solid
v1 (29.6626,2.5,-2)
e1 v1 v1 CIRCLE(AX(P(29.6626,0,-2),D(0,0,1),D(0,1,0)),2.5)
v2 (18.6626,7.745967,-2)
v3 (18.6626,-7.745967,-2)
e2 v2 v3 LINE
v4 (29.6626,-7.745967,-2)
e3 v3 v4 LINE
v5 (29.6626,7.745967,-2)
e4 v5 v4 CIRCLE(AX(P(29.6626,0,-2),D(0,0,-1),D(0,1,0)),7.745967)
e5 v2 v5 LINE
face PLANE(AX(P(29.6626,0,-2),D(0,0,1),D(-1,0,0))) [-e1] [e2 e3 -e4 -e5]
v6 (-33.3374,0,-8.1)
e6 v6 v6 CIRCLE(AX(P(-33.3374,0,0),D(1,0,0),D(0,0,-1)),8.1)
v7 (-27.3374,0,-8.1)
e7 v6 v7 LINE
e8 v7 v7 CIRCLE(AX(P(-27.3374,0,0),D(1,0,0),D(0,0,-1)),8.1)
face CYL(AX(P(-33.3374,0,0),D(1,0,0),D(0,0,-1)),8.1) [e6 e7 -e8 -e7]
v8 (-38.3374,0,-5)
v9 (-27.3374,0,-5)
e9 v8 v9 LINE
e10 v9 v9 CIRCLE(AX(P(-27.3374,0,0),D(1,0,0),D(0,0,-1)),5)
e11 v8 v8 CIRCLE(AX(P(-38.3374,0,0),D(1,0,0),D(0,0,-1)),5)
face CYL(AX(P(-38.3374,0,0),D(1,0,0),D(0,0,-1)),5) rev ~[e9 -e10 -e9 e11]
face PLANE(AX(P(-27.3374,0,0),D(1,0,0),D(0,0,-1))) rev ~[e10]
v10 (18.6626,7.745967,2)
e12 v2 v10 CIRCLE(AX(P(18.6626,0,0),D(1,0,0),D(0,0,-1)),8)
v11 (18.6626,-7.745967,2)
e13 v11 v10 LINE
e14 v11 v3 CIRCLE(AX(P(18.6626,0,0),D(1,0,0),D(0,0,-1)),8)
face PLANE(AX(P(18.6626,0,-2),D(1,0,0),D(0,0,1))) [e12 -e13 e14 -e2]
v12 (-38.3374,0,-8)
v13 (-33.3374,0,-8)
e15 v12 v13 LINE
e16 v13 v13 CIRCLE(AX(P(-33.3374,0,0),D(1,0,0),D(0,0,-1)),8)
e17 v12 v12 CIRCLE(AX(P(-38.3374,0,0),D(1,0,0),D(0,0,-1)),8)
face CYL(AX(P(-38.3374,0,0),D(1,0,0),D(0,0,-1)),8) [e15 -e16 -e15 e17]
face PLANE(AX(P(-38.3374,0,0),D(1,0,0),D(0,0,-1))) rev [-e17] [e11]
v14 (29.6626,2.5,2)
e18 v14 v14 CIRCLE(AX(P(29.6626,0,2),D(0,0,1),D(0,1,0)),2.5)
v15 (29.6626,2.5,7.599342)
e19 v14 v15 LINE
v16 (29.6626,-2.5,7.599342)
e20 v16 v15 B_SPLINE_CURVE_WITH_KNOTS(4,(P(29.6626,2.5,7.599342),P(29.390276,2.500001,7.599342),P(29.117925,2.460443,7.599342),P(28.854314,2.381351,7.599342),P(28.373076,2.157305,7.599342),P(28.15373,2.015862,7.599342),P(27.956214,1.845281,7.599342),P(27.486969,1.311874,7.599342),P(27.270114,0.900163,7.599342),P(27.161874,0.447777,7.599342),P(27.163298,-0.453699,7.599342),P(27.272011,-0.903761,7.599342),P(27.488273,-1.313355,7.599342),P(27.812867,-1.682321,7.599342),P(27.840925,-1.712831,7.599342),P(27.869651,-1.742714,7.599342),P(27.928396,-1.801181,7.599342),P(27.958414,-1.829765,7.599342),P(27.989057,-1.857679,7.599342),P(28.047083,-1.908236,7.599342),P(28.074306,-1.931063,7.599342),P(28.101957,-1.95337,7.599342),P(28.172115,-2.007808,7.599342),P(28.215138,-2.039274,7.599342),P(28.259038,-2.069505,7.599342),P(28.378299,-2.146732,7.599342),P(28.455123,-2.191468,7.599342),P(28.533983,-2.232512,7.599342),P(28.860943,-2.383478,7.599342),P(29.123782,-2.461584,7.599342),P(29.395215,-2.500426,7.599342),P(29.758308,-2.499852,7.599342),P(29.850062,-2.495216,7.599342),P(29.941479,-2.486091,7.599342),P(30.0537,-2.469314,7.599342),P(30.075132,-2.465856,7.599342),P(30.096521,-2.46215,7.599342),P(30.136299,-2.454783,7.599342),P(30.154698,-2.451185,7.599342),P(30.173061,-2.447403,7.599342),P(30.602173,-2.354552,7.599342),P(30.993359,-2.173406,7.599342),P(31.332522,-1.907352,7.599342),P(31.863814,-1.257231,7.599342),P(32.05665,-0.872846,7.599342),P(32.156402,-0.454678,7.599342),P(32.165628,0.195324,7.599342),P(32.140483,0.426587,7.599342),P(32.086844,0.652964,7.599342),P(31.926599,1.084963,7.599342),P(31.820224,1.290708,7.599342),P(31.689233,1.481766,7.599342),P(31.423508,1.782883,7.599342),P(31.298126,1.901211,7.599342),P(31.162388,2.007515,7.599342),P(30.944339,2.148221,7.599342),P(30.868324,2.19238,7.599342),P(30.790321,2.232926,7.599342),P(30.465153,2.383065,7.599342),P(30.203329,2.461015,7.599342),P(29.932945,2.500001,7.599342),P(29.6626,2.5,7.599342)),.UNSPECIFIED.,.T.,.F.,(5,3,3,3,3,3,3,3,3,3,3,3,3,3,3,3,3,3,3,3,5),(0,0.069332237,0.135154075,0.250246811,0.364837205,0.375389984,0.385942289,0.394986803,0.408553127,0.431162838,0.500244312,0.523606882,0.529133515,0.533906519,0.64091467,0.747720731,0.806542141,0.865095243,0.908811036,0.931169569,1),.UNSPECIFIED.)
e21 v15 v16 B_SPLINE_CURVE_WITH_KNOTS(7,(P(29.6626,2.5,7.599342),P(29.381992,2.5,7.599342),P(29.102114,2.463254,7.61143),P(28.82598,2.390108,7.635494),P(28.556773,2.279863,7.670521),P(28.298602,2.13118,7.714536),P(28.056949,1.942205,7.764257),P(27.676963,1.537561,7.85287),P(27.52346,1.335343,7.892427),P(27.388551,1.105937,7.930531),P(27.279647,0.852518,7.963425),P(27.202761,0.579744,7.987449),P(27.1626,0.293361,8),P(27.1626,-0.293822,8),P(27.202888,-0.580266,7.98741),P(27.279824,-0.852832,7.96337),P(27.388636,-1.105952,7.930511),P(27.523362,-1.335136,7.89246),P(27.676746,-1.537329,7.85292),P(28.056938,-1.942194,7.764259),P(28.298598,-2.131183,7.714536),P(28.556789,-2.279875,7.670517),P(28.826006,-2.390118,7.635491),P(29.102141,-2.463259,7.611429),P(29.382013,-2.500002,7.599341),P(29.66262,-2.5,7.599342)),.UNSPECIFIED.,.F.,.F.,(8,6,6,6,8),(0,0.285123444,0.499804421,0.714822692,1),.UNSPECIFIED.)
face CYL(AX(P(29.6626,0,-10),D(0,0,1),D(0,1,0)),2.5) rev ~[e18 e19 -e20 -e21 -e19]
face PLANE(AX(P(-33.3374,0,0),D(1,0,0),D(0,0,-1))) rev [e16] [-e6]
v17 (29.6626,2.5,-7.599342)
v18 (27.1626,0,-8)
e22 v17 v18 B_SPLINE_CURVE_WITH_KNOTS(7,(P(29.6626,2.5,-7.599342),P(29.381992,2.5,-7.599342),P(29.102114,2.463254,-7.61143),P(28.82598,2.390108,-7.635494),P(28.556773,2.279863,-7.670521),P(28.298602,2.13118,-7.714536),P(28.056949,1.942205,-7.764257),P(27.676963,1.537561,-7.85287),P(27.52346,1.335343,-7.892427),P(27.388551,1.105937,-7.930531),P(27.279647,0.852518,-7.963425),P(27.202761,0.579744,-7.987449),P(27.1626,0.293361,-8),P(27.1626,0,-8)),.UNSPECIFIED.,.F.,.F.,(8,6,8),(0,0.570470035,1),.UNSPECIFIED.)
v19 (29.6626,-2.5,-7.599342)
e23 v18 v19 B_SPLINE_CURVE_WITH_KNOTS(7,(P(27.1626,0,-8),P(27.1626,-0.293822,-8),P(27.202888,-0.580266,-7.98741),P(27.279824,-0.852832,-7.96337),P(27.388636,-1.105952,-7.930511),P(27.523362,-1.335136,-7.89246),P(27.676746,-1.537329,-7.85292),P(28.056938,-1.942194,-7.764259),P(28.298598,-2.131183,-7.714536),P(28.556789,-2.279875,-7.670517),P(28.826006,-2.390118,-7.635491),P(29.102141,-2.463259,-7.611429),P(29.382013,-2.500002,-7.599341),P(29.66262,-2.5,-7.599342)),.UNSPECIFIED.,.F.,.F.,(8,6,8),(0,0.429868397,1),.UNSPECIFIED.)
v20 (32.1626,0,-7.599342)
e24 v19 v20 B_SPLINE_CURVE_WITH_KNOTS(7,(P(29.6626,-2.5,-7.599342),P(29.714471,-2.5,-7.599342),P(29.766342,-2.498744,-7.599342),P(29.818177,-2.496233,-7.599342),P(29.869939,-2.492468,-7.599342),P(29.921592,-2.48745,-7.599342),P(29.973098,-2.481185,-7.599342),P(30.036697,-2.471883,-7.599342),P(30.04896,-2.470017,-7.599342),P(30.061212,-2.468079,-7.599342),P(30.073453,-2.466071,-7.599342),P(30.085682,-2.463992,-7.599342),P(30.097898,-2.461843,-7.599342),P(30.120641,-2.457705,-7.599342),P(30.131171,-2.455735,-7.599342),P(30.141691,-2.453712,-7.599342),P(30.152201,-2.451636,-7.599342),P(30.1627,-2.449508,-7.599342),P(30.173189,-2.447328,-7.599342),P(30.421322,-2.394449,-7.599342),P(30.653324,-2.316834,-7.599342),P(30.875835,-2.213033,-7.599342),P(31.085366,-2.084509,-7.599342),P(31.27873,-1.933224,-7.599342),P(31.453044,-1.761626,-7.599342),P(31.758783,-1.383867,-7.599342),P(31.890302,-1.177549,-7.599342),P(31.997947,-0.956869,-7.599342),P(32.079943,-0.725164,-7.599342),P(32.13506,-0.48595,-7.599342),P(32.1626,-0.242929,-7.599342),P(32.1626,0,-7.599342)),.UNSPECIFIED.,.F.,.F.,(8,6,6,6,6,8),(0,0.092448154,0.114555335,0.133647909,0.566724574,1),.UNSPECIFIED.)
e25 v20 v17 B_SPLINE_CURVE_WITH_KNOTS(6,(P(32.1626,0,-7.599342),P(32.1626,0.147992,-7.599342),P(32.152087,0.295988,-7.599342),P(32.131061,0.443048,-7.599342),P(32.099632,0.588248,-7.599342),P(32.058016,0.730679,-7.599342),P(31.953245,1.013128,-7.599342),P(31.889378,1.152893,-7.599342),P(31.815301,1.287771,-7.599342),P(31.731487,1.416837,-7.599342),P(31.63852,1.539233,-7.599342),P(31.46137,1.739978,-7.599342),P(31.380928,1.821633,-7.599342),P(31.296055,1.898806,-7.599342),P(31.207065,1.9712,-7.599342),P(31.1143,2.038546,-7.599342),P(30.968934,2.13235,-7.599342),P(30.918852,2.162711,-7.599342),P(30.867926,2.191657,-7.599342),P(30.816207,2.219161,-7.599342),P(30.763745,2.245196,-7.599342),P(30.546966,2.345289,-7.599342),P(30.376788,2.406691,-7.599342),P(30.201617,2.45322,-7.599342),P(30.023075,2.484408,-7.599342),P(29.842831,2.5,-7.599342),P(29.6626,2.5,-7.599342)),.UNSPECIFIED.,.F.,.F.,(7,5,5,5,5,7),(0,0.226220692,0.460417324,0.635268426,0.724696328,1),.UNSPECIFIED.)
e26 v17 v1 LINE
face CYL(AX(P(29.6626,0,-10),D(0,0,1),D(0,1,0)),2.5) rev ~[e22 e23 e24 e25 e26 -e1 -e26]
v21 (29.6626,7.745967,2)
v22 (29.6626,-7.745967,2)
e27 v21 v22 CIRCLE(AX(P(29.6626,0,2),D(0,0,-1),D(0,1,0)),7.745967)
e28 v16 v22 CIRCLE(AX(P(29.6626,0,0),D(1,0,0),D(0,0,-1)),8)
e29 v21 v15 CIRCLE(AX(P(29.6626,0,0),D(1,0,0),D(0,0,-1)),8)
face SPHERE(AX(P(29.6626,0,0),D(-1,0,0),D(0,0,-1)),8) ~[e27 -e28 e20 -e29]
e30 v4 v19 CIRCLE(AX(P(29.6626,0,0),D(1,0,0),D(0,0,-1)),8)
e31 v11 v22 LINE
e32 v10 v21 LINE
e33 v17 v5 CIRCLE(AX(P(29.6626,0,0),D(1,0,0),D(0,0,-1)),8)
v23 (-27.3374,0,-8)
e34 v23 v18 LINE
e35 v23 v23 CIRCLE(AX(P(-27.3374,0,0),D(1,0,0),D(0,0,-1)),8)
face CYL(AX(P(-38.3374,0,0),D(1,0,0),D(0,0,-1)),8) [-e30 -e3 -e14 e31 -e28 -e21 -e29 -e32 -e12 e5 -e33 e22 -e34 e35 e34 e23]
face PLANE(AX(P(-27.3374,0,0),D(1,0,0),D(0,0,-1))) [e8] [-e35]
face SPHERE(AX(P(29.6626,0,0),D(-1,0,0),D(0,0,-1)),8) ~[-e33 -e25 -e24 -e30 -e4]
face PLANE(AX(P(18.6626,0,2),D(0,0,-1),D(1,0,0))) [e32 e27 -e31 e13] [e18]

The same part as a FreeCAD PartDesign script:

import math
import FreeCAD as App
import Part
import Sketcher
Q = App.Units.Quantity


def add_polygon(sketch, points):
    """Adds a closed chain of lines whose ends are joined by coincident constraints."""
    first, n = sketch.GeometryCount, len(points)
    for a, b in zip(points, points[1:] + points[:1]):
        sketch.addGeometry(Part.LineSegment(App.Vector(*a, 0), App.Vector(*b, 0)), False)
    for i in range(n):
        sketch.addConstraint(Sketcher.Constraint("Coincident", first + i, 2, first + (i + 1) % n, 1))

doc = App.newDocument("Part")
params = doc.addObject("Spreadsheet::Sheet", "Params")
for row, (alias, value) in enumerate([
    ("sketch1_radius", "8 mm"),
    ("sketch1_width", "6 mm"),
    ("sketch1_width2", "5 mm"),
    ("sketch1_width3", "65 mm"),
    ("sketch1_height", "0.1 mm"),
    ("revolution_angle", "360 deg"),
    ("sketch2_width", "19 mm"),
    ("sketch2_height", "4 mm"),
    ("sketch3_diameter", "5 mm"),
    ("hole_diameter", "5 mm"),
], start=1):
    params.set(f"A{row}", alias)
    params.set(f"B{row}", "=" + value)
    params.setAlias(f"B{row}", alias)

body = doc.addObject("PartDesign::Body", "Body")

sketch1 = body.newObject("Sketcher::SketchObject", "Sketch")
sketch1.AttachmentSupport = (doc.getObject("XZ_Plane"), [""])
sketch1.MapMode = "FlatFace"
sketch1.addGeometry([
    Part.LineSegment(App.Vector(-27.3374, -5, 0), App.Vector(-27.3374, 0, 0)),
    Part.LineSegment(App.Vector(-27.3374, 0, 0), App.Vector(37.6626, 0, 0)),
    Part.ArcOfCircle(Part.Circle(App.Vector(29.6626, 0, 0), App.Vector(0, 0, 1), 8), math.radians(-90), math.radians(0)),
    Part.LineSegment(App.Vector(29.6626, -8, 0), App.Vector(-27.3374, -8, 0)),
    Part.LineSegment(App.Vector(-27.3374, -8, 0), App.Vector(-27.3374, -8.1, 0)),
    Part.LineSegment(App.Vector(-27.3374, -8.1, 0), App.Vector(-33.3374, -8.1, 0)),
    Part.LineSegment(App.Vector(-33.3374, -8.1, 0), App.Vector(-33.3374, -8, 0)),
    Part.LineSegment(App.Vector(-33.3374, -8, 0), App.Vector(-38.3374, -8, 0)),
    Part.LineSegment(App.Vector(-38.3374, -8, 0), App.Vector(-38.3374, -5, 0)),
    Part.LineSegment(App.Vector(-38.3374, -5, 0), App.Vector(-27.3374, -5, 0)),
], False)
sketch1.addConstraint([
    Sketcher.Constraint("Coincident", 0, 2, 1, 1),
    Sketcher.Constraint("Coincident", 1, 2, 2, 2),
    Sketcher.Constraint("Tangent", 2, 1, 3, 1),
    Sketcher.Constraint("Coincident", 3, 2, 4, 1),
    Sketcher.Constraint("Coincident", 4, 2, 5, 1),
    Sketcher.Constraint("Coincident", 5, 2, 6, 1),
    Sketcher.Constraint("Coincident", 6, 2, 7, 1),
    Sketcher.Constraint("Coincident", 7, 2, 8, 1),
    Sketcher.Constraint("Coincident", 8, 2, 9, 1),
    Sketcher.Constraint("Coincident", 9, 2, 0, 1),
    Sketcher.Constraint("Vertical", 0),
    Sketcher.Constraint("Horizontal", 1),
    Sketcher.Constraint("Horizontal", 3),
    Sketcher.Constraint("Vertical", 4),
    Sketcher.Constraint("Horizontal", 5),
    Sketcher.Constraint("Vertical", 6),
    Sketcher.Constraint("Horizontal", 7),
    Sketcher.Constraint("Vertical", 8),
    Sketcher.Constraint("Horizontal", 9),
    Sketcher.Constraint("PointOnObject", 2, 3, -1),
    Sketcher.Constraint("PointOnObject", 0, 2, -1),
    Sketcher.Constraint("Horizontal", 3, 2, 6, 2),
    Sketcher.Constraint("Vertical", 0, 2, 3, 2),
    Sketcher.Constraint("Equal", 7, 0),
    Sketcher.Constraint("Radius", 2, Q("8 mm")),
    Sketcher.Constraint("DistanceX", 5, 2, 5, 1, Q("6 mm")),
    Sketcher.Constraint("DistanceX", 7, 2, 7, 1, Q("5 mm")),
    Sketcher.Constraint("DistanceX", 1, 1, 1, 2, Q("65 mm")),
    Sketcher.Constraint("DistanceY", 4, 2, 4, 1, Q("0.1 mm")),
    Sketcher.Constraint("DistanceX", 7, 2, -1, 1, Q("38.3374 mm")),
])
sketch1.setExpression("Constraints[24]", "Params.sketch1_radius")
sketch1.setExpression("Constraints[25]", "Params.sketch1_width")
sketch1.setExpression("Constraints[26]", "Params.sketch1_width2")
sketch1.setExpression("Constraints[27]", "Params.sketch1_width3")
sketch1.setExpression("Constraints[28]", "Params.sketch1_height")
revolution = body.newObject("PartDesign::Revolution", "Revolution")
revolution.Profile = sketch1
revolution.ReferenceAxis = (sketch1, ["H_Axis"])
revolution.setExpression("Angle", "Params.revolution_angle")

sketch2 = body.newObject("Sketcher::SketchObject", "Sketch001")
sketch2.AttachmentSupport = (doc.getObject("XZ_Plane"), [""])
sketch2.MapMode = "FlatFace"
add_polygon(sketch2, [(18.6626, -2), (18.6626, 2), (37.6626, 2), (37.6626, -2)])
sketch2.addConstraint([
    Sketcher.Constraint("Vertical", 0),
    Sketcher.Constraint("Horizontal", 1),
    Sketcher.Constraint("Vertical", 2),
    Sketcher.Constraint("Horizontal", 3),
    Sketcher.Constraint("DistanceX", 1, 1, 1, 2, Q("19 mm")),
    Sketcher.Constraint("DistanceY", 0, 1, 0, 2, Q("4 mm")),
    Sketcher.Constraint("DistanceY", -1, 1, 0, 2, Q("2 mm")),
    Sketcher.Constraint("DistanceX", -1, 1, 0, 2, Q("18.6626 mm")),
])
sketch2.setExpression("Constraints[8]", "Params.sketch2_width")
sketch2.setExpression("Constraints[9]", "Params.sketch2_height")
pocket1 = body.newObject("PartDesign::Pocket", "Pocket")
pocket1.Profile = sketch2
pocket1.Type = "ThroughAll"
pocket1.Midplane = True

sketch3 = body.newObject("Sketcher::SketchObject", "Sketch002")
sketch3.AttachmentSupport = (doc.getObject("XY_Plane"), [""])
sketch3.MapMode = "FlatFace"
sketch3.AttachmentOffset = App.Placement(App.Vector(0, 0, -10), App.Rotation())
sketch3.addGeometry(Part.Circle(App.Vector(29.6626, 0, 0), App.Vector(0, 0, 1), 2.5), False)
sketch3.addConstraint([
    Sketcher.Constraint("PointOnObject", 0, 3, -1),
    Sketcher.Constraint("Diameter", 0, Q("5 mm")),
    Sketcher.Constraint("DistanceX", -1, 1, 0, 3, Q("29.6626 mm")),
])
sketch3.setExpression("Constraints[1]", "Params.sketch3_diameter")
doc.recompute()
hole = body.newObject("PartDesign::Hole", "Hole")
hole.Profile = sketch3
hole.ThreadType = "None"
hole.setExpression("Diameter", "Params.hole_diameter")
hole.DepthType = "ThroughAll"
hole.Reversed = True

doc.recompute()
